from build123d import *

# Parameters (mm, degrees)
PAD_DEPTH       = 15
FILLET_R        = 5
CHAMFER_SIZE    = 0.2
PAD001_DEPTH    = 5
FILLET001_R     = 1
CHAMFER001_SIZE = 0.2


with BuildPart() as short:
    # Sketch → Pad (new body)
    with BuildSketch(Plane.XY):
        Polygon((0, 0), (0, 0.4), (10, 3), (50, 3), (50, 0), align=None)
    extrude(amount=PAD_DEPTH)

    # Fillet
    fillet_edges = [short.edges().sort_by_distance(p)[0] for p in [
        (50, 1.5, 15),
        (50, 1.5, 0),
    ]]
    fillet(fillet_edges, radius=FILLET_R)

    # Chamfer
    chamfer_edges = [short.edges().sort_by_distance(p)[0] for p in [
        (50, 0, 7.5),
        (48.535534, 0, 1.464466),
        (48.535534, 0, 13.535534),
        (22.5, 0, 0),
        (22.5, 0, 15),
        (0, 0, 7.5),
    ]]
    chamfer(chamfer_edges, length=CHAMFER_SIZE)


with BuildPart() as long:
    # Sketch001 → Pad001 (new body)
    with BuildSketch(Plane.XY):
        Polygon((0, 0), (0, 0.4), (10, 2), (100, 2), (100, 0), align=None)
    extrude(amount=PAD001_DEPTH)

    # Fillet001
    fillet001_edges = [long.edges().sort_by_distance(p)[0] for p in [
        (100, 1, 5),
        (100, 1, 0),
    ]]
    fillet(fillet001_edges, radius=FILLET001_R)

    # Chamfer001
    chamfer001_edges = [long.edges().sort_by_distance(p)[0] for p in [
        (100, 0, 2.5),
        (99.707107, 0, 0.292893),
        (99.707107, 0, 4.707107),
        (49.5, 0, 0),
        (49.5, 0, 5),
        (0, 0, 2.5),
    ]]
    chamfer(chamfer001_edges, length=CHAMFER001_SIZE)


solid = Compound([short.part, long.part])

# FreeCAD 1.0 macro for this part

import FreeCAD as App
import Part
import Sketcher
from FreeCAD import Vector
Q = App.Units.Quantity


def edges_at(feature, points):
    """Names of the edges that pass closest to the given points."""
    edges = feature.Shape.Edges
    near = lambda p: min(range(len(edges)), key=lambda i: edges[i].distToShape(Part.Vertex(*p))[0])
    return sorted({f"Edge{near(p) + 1}" for p in points})


def add_polygon(sketch, points):
    """Adds a closed chain of lines whose ends are joined by coincident constraints."""
    first, n = sketch.GeometryCount, len(points)
    for a, b in zip(points, points[1:] + points[:1]):
        sketch.addGeometry(Part.LineSegment(App.Vector(*a, 0), App.Vector(*b, 0)), False)
    for i in range(n):
        sketch.addConstraint(Sketcher.Constraint("Coincident", first + i, 2, first + (i + 1) % n, 1))

doc = App.newDocument("Part")
body = doc.addObject("PartDesign::Body", "Body")

# Sketch on XY plane
sketch1 = body.newObject("Sketcher::SketchObject", "Sketch")
sketch1.AttachmentSupport = (doc.getObject("XY_Plane"), [""])
sketch1.MapMode = "FlatFace"
add_polygon(sketch1, [(0, 0.4), (0, 0), (50, 0), (50, 3), (10, 3)])  # lines 0-4
sketch1.addConstraint([
    Sketcher.Constraint("Vertical", 0),
    Sketcher.Constraint("Horizontal", 1),
    Sketcher.Constraint("Vertical", 2),
    Sketcher.Constraint("Horizontal", 3),
    Sketcher.Constraint("Coincident", 0, 2, -1, 1),
    Sketcher.Constraint("DistanceX", 1, 1, 1, 2, Q("50 mm")),
    Sketcher.Constraint("DistanceX", 3, 2, 3, 1, Q("40 mm")),
    Sketcher.Constraint("DistanceY", 2, 1, 2, 2, Q("3 mm")),
    Sketcher.Constraint("DistanceY", 0, 2, 0, 1, Q("0.4 mm")),
])
pad1 = body.newObject("PartDesign::Pad", "Pad")
pad1.Profile = sketch1
pad1.Length = 15
doc.recompute()

fillet = body.newObject("PartDesign::Fillet", "Fillet")
fillet.Base = (pad1, edges_at(pad1, [(50, 1.5, 15), (50, 1.5, 0)]))
fillet.Radius = 5
doc.recompute()

chamfer = body.newObject("PartDesign::Chamfer", "Chamfer")
chamfer.Base = (fillet, edges_at(fillet, [
    (50, 0, 7.5),
    (48.536, 0, 1.464),
    (48.536, 0, 13.536),
    (22.5, 0, 0),
    (22.5, 0, 15),
    (0, 0, 7.5),
]))
chamfer.Size = 0.2
body2 = doc.addObject("PartDesign::Body", "Body001")

# Sketch on XY plane
sketch2 = body2.newObject("Sketcher::SketchObject", "Sketch001")
sketch2.AttachmentSupport = (doc.getObject("XY_Plane001"), [""])
sketch2.MapMode = "FlatFace"
add_polygon(sketch2, [(0, 0.4), (0, 0), (100, 0), (100, 2), (10, 2)])  # lines 0-4
sketch2.addConstraint([
    Sketcher.Constraint("Vertical", 0),
    Sketcher.Constraint("Horizontal", 1),
    Sketcher.Constraint("Vertical", 2),
    Sketcher.Constraint("Horizontal", 3),
    Sketcher.Constraint("Coincident", 0, 2, -1, 1),
    Sketcher.Constraint("DistanceX", 1, 1, 1, 2, Q("100 mm")),
    Sketcher.Constraint("DistanceX", 3, 2, 3, 1, Q("90 mm")),
    Sketcher.Constraint("DistanceY", 2, 1, 2, 2, Q("2 mm")),
    Sketcher.Constraint("DistanceY", 0, 2, 0, 1, Q("0.4 mm")),
])
pad2 = body2.newObject("PartDesign::Pad", "Pad001")
pad2.Profile = sketch2
pad2.Length = 5
doc.recompute()

fillet2 = body2.newObject("PartDesign::Fillet", "Fillet001")
fillet2.Base = (pad2, edges_at(pad2, [(100, 1, 5), (100, 1, 0)]))
fillet2.Radius = 1
doc.recompute()

chamfer2 = body2.newObject("PartDesign::Chamfer", "Chamfer001")
chamfer2.Base = (fillet2, edges_at(fillet2, [
    (100, 0, 2.5),
    (99.707, 0, 0.293),
    (99.707, 0, 4.707),
    (49.5, 0, 0),
    (49.5, 0, 5),
    (0, 0, 2.5),
]))
chamfer2.Size = 0.2

doc.recompute()
